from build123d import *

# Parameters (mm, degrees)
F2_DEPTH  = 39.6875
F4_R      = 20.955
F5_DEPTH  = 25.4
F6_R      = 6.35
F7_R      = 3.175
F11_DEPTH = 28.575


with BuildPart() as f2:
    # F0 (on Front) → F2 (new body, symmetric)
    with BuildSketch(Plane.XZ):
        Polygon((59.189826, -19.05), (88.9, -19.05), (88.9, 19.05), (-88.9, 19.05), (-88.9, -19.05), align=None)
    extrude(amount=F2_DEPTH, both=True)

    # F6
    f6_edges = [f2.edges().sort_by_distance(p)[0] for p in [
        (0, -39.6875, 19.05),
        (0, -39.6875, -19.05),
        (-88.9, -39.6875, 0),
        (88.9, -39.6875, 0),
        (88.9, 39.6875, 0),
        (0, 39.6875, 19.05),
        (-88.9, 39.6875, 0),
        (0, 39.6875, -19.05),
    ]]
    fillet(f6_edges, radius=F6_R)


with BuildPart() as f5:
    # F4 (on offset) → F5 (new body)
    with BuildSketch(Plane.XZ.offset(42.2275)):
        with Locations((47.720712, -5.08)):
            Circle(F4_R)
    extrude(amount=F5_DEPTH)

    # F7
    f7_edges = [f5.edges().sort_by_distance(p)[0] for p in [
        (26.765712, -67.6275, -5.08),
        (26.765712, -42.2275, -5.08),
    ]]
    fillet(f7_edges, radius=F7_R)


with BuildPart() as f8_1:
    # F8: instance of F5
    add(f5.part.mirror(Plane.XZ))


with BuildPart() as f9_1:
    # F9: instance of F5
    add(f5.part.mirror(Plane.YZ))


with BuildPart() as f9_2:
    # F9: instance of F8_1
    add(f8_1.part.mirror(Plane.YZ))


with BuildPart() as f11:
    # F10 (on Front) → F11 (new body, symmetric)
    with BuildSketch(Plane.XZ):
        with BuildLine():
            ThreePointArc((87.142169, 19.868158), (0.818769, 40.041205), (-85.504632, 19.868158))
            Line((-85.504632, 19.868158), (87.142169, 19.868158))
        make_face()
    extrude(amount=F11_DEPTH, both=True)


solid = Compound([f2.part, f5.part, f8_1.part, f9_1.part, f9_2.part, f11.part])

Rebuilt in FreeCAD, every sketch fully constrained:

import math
import FreeCAD as App
import Part
import Sketcher

V = App.Vector
Q = App.Units.Quantity


def edges_at(feature, points):
    """Names of the edges that pass closest to the given points."""
    edges = feature.Shape.Edges
    near = lambda p: min(range(len(edges)), key=lambda i: edges[i].distToShape(Part.Vertex(*p))[0])
    return sorted({f"Edge{near(p) + 1}" for p in points})


def add_polygon(sketch, points):
    """Adds a closed chain of lines whose ends are joined by coincident constraints."""
    first, n = sketch.GeometryCount, len(points)
    for a, b in zip(points, points[1:] + points[:1]):
        sketch.addGeometry(Part.LineSegment(App.Vector(*a, 0), App.Vector(*b, 0)), False)
    for i in range(n):
        sketch.addConstraint(Sketcher.Constraint("Coincident", first + i, 2, first + (i + 1) % n, 1))

doc = App.newDocument("Part")
params = doc.addObject("Spreadsheet::Sheet", "Params")
for row, (alias, value) in enumerate([
    ("sketch1_width", "7 in"),
    ("sketch1_height", "1.5 in"),
    ("pad1_length", "3.125 in"),
    ("fillet_radius", "0.25 in"),
    ("sketch2_diameter", "1.65 in"),
    ("pad2_length", "1 in"),
    ("fillet2_radius", "0.125 in"),
    ("pad3_length", "2.25 in"),
], start=1):
    params.set(f"A{row}", alias)
    params.set(f"B{row}", "=" + value)
    params.setAlias(f"B{row}", alias)

body = doc.addObject("PartDesign::Body", "Body")

sketch1 = body.newObject("Sketcher::SketchObject", "Sketch")
sketch1.AttachmentSupport = (doc.getObject("XZ_Plane"), [""])
sketch1.MapMode = "FlatFace"
add_polygon(sketch1, [(89, -19), (89, 19), (-89, 19), (-89, -19)])
sketch1.addConstraint([
    Sketcher.Constraint("Vertical", 0),
    Sketcher.Constraint("Horizontal", 1),
    Sketcher.Constraint("Vertical", 2),
    Sketcher.Constraint("Horizontal", 3),
    Sketcher.Constraint("Symmetric", 0, 2, 2, 2, -1, 1),
    Sketcher.Constraint("DistanceX", 1, 2, 1, 1, Q("7 in")),
    Sketcher.Constraint("DistanceY", 0, 1, 0, 2, Q("1.5 in")),
])
sketch1.setExpression("Constraints[9]", "Params.sketch1_width")
sketch1.setExpression("Constraints[10]", "Params.sketch1_height")
pad1 = body.newObject("PartDesign::Pad", "Pad")
pad1.Profile = sketch1
pad1.setExpression("Length", "Params.pad1_length")
pad1.Midplane = True
doc.recompute()

fillet = body.newObject("PartDesign::Fillet", "Fillet")
fillet.Base = (pad1, edges_at(pad1, [
    (0, -39.688, 19.05),
    (0, -39.688, -19.05),
    (-88.9, -39.688, 0),
    (88.9, -39.688, 0),
    (88.9, 39.688, 0),
    (0, 39.688, 19.05),
    (-88.9, 39.688, 0),
    (0, 39.688, -19.05),
]))
fillet.setExpression("Radius", "Params.fillet_radius")
body2 = doc.addObject("PartDesign::Body", "Body001")

sketch2 = body2.newObject("Sketcher::SketchObject", "Sketch001")
sketch2.AttachmentSupport = (doc.getObject("XZ_Plane001"), [""])
sketch2.MapMode = "FlatFace"
sketch2.AttachmentOffset = App.Placement(V(0, 0, 1.6625 * 25.4), App.Rotation())
sketch2.addGeometry(Part.Circle(V(48, -5, 0), V(0, 0, 1), 21), False)
sketch2.addConstraint([
    Sketcher.Constraint("Diameter", 0, Q("1.65 in")),
    Sketcher.Constraint("DistanceY", 0, 3, -1, 1, Q("0.2 in")),
    Sketcher.Constraint("DistanceX", -1, 1, 0, 3, 47.720712),
])
sketch2.setExpression("Constraints[0]", "Params.sketch2_diameter")
pad2 = body2.newObject("PartDesign::Pad", "Pad001")
pad2.Profile = sketch2
pad2.setExpression("Length", "Params.pad2_length")
doc.recompute()

fillet2 = body2.newObject("PartDesign::Fillet", "Fillet001")
fillet2.Base = (pad2, edges_at(pad2, [(26.766, -67.627, -5.08), (26.766, -42.227, -5.08)]))
fillet2.setExpression("Radius", "Params.fillet2_radius")
body3 = doc.addObject("PartDesign::Body", "Body002")
doc.recompute()

mirroring = doc.addObject("Part::Mirroring", "Mirroring")
mirroring.Source = body2
mirroring.Base = V(0, 0, 0)
mirroring.Normal = V(0, -1, 0)
body3.BaseFeature = mirroring
doc.recompute()
body4 = doc.addObject("PartDesign::Body", "Body003")
doc.recompute()

mirroring2 = doc.addObject("Part::Mirroring", "Mirroring001")
mirroring2.Source = body2
mirroring2.Base = V(0, 0, 0)
mirroring2.Normal = V(1, 0, 0)
body4.BaseFeature = mirroring2
doc.recompute()
body5 = doc.addObject("PartDesign::Body", "Body004")
doc.recompute()

mirroring3 = doc.addObject("Part::Mirroring", "Mirroring002")
mirroring3.Source = body3
mirroring3.Base = V(0, 0, 0)
mirroring3.Normal = V(1, 0, 0)
body5.BaseFeature = mirroring3
doc.recompute()
body6 = doc.addObject("PartDesign::Body", "Body005")

sketch3 = body6.newObject("Sketcher::SketchObject", "Sketch002")
sketch3.AttachmentSupport = (doc.getObject("XZ_Plane005"), [""])
sketch3.MapMode = "FlatFace"
sketch3.addGeometry([
    Part.ArcOfCircle(Part.Circle(V(1, -155, 0), V(0, 0, 1), 195), math.radians(64), math.radians(116)),
    Part.LineSegment(V(-86, 20, 0), V(87, 20, 0)),
], False)
sketch3.addConstraint([
    Sketcher.Constraint("Coincident", 0, 1, 1, 2),
    Sketcher.Constraint("Coincident", 1, 1, 0, 2),
    Sketcher.Constraint("Horizontal", 1),
    Sketcher.Constraint("DistanceX", 1, 1, 1, 2, 172.646801),
    Sketcher.Constraint("Radius", 0, 194.781713),
    Sketcher.Constraint("DistanceX", -1, 1, 0, 3, 0.818769),
    Sketcher.Constraint("DistanceY", -1, 1, 0, 1, 19.868158),
])
pad3 = body6.newObject("PartDesign::Pad", "Pad002")
pad3.Profile = sketch3
pad3.setExpression("Length", "Params.pad3_length")
pad3.Midplane = True
mirroring.Visibility = False
mirroring2.Visibility = False
mirroring3.Visibility = False

doc.recompute()
